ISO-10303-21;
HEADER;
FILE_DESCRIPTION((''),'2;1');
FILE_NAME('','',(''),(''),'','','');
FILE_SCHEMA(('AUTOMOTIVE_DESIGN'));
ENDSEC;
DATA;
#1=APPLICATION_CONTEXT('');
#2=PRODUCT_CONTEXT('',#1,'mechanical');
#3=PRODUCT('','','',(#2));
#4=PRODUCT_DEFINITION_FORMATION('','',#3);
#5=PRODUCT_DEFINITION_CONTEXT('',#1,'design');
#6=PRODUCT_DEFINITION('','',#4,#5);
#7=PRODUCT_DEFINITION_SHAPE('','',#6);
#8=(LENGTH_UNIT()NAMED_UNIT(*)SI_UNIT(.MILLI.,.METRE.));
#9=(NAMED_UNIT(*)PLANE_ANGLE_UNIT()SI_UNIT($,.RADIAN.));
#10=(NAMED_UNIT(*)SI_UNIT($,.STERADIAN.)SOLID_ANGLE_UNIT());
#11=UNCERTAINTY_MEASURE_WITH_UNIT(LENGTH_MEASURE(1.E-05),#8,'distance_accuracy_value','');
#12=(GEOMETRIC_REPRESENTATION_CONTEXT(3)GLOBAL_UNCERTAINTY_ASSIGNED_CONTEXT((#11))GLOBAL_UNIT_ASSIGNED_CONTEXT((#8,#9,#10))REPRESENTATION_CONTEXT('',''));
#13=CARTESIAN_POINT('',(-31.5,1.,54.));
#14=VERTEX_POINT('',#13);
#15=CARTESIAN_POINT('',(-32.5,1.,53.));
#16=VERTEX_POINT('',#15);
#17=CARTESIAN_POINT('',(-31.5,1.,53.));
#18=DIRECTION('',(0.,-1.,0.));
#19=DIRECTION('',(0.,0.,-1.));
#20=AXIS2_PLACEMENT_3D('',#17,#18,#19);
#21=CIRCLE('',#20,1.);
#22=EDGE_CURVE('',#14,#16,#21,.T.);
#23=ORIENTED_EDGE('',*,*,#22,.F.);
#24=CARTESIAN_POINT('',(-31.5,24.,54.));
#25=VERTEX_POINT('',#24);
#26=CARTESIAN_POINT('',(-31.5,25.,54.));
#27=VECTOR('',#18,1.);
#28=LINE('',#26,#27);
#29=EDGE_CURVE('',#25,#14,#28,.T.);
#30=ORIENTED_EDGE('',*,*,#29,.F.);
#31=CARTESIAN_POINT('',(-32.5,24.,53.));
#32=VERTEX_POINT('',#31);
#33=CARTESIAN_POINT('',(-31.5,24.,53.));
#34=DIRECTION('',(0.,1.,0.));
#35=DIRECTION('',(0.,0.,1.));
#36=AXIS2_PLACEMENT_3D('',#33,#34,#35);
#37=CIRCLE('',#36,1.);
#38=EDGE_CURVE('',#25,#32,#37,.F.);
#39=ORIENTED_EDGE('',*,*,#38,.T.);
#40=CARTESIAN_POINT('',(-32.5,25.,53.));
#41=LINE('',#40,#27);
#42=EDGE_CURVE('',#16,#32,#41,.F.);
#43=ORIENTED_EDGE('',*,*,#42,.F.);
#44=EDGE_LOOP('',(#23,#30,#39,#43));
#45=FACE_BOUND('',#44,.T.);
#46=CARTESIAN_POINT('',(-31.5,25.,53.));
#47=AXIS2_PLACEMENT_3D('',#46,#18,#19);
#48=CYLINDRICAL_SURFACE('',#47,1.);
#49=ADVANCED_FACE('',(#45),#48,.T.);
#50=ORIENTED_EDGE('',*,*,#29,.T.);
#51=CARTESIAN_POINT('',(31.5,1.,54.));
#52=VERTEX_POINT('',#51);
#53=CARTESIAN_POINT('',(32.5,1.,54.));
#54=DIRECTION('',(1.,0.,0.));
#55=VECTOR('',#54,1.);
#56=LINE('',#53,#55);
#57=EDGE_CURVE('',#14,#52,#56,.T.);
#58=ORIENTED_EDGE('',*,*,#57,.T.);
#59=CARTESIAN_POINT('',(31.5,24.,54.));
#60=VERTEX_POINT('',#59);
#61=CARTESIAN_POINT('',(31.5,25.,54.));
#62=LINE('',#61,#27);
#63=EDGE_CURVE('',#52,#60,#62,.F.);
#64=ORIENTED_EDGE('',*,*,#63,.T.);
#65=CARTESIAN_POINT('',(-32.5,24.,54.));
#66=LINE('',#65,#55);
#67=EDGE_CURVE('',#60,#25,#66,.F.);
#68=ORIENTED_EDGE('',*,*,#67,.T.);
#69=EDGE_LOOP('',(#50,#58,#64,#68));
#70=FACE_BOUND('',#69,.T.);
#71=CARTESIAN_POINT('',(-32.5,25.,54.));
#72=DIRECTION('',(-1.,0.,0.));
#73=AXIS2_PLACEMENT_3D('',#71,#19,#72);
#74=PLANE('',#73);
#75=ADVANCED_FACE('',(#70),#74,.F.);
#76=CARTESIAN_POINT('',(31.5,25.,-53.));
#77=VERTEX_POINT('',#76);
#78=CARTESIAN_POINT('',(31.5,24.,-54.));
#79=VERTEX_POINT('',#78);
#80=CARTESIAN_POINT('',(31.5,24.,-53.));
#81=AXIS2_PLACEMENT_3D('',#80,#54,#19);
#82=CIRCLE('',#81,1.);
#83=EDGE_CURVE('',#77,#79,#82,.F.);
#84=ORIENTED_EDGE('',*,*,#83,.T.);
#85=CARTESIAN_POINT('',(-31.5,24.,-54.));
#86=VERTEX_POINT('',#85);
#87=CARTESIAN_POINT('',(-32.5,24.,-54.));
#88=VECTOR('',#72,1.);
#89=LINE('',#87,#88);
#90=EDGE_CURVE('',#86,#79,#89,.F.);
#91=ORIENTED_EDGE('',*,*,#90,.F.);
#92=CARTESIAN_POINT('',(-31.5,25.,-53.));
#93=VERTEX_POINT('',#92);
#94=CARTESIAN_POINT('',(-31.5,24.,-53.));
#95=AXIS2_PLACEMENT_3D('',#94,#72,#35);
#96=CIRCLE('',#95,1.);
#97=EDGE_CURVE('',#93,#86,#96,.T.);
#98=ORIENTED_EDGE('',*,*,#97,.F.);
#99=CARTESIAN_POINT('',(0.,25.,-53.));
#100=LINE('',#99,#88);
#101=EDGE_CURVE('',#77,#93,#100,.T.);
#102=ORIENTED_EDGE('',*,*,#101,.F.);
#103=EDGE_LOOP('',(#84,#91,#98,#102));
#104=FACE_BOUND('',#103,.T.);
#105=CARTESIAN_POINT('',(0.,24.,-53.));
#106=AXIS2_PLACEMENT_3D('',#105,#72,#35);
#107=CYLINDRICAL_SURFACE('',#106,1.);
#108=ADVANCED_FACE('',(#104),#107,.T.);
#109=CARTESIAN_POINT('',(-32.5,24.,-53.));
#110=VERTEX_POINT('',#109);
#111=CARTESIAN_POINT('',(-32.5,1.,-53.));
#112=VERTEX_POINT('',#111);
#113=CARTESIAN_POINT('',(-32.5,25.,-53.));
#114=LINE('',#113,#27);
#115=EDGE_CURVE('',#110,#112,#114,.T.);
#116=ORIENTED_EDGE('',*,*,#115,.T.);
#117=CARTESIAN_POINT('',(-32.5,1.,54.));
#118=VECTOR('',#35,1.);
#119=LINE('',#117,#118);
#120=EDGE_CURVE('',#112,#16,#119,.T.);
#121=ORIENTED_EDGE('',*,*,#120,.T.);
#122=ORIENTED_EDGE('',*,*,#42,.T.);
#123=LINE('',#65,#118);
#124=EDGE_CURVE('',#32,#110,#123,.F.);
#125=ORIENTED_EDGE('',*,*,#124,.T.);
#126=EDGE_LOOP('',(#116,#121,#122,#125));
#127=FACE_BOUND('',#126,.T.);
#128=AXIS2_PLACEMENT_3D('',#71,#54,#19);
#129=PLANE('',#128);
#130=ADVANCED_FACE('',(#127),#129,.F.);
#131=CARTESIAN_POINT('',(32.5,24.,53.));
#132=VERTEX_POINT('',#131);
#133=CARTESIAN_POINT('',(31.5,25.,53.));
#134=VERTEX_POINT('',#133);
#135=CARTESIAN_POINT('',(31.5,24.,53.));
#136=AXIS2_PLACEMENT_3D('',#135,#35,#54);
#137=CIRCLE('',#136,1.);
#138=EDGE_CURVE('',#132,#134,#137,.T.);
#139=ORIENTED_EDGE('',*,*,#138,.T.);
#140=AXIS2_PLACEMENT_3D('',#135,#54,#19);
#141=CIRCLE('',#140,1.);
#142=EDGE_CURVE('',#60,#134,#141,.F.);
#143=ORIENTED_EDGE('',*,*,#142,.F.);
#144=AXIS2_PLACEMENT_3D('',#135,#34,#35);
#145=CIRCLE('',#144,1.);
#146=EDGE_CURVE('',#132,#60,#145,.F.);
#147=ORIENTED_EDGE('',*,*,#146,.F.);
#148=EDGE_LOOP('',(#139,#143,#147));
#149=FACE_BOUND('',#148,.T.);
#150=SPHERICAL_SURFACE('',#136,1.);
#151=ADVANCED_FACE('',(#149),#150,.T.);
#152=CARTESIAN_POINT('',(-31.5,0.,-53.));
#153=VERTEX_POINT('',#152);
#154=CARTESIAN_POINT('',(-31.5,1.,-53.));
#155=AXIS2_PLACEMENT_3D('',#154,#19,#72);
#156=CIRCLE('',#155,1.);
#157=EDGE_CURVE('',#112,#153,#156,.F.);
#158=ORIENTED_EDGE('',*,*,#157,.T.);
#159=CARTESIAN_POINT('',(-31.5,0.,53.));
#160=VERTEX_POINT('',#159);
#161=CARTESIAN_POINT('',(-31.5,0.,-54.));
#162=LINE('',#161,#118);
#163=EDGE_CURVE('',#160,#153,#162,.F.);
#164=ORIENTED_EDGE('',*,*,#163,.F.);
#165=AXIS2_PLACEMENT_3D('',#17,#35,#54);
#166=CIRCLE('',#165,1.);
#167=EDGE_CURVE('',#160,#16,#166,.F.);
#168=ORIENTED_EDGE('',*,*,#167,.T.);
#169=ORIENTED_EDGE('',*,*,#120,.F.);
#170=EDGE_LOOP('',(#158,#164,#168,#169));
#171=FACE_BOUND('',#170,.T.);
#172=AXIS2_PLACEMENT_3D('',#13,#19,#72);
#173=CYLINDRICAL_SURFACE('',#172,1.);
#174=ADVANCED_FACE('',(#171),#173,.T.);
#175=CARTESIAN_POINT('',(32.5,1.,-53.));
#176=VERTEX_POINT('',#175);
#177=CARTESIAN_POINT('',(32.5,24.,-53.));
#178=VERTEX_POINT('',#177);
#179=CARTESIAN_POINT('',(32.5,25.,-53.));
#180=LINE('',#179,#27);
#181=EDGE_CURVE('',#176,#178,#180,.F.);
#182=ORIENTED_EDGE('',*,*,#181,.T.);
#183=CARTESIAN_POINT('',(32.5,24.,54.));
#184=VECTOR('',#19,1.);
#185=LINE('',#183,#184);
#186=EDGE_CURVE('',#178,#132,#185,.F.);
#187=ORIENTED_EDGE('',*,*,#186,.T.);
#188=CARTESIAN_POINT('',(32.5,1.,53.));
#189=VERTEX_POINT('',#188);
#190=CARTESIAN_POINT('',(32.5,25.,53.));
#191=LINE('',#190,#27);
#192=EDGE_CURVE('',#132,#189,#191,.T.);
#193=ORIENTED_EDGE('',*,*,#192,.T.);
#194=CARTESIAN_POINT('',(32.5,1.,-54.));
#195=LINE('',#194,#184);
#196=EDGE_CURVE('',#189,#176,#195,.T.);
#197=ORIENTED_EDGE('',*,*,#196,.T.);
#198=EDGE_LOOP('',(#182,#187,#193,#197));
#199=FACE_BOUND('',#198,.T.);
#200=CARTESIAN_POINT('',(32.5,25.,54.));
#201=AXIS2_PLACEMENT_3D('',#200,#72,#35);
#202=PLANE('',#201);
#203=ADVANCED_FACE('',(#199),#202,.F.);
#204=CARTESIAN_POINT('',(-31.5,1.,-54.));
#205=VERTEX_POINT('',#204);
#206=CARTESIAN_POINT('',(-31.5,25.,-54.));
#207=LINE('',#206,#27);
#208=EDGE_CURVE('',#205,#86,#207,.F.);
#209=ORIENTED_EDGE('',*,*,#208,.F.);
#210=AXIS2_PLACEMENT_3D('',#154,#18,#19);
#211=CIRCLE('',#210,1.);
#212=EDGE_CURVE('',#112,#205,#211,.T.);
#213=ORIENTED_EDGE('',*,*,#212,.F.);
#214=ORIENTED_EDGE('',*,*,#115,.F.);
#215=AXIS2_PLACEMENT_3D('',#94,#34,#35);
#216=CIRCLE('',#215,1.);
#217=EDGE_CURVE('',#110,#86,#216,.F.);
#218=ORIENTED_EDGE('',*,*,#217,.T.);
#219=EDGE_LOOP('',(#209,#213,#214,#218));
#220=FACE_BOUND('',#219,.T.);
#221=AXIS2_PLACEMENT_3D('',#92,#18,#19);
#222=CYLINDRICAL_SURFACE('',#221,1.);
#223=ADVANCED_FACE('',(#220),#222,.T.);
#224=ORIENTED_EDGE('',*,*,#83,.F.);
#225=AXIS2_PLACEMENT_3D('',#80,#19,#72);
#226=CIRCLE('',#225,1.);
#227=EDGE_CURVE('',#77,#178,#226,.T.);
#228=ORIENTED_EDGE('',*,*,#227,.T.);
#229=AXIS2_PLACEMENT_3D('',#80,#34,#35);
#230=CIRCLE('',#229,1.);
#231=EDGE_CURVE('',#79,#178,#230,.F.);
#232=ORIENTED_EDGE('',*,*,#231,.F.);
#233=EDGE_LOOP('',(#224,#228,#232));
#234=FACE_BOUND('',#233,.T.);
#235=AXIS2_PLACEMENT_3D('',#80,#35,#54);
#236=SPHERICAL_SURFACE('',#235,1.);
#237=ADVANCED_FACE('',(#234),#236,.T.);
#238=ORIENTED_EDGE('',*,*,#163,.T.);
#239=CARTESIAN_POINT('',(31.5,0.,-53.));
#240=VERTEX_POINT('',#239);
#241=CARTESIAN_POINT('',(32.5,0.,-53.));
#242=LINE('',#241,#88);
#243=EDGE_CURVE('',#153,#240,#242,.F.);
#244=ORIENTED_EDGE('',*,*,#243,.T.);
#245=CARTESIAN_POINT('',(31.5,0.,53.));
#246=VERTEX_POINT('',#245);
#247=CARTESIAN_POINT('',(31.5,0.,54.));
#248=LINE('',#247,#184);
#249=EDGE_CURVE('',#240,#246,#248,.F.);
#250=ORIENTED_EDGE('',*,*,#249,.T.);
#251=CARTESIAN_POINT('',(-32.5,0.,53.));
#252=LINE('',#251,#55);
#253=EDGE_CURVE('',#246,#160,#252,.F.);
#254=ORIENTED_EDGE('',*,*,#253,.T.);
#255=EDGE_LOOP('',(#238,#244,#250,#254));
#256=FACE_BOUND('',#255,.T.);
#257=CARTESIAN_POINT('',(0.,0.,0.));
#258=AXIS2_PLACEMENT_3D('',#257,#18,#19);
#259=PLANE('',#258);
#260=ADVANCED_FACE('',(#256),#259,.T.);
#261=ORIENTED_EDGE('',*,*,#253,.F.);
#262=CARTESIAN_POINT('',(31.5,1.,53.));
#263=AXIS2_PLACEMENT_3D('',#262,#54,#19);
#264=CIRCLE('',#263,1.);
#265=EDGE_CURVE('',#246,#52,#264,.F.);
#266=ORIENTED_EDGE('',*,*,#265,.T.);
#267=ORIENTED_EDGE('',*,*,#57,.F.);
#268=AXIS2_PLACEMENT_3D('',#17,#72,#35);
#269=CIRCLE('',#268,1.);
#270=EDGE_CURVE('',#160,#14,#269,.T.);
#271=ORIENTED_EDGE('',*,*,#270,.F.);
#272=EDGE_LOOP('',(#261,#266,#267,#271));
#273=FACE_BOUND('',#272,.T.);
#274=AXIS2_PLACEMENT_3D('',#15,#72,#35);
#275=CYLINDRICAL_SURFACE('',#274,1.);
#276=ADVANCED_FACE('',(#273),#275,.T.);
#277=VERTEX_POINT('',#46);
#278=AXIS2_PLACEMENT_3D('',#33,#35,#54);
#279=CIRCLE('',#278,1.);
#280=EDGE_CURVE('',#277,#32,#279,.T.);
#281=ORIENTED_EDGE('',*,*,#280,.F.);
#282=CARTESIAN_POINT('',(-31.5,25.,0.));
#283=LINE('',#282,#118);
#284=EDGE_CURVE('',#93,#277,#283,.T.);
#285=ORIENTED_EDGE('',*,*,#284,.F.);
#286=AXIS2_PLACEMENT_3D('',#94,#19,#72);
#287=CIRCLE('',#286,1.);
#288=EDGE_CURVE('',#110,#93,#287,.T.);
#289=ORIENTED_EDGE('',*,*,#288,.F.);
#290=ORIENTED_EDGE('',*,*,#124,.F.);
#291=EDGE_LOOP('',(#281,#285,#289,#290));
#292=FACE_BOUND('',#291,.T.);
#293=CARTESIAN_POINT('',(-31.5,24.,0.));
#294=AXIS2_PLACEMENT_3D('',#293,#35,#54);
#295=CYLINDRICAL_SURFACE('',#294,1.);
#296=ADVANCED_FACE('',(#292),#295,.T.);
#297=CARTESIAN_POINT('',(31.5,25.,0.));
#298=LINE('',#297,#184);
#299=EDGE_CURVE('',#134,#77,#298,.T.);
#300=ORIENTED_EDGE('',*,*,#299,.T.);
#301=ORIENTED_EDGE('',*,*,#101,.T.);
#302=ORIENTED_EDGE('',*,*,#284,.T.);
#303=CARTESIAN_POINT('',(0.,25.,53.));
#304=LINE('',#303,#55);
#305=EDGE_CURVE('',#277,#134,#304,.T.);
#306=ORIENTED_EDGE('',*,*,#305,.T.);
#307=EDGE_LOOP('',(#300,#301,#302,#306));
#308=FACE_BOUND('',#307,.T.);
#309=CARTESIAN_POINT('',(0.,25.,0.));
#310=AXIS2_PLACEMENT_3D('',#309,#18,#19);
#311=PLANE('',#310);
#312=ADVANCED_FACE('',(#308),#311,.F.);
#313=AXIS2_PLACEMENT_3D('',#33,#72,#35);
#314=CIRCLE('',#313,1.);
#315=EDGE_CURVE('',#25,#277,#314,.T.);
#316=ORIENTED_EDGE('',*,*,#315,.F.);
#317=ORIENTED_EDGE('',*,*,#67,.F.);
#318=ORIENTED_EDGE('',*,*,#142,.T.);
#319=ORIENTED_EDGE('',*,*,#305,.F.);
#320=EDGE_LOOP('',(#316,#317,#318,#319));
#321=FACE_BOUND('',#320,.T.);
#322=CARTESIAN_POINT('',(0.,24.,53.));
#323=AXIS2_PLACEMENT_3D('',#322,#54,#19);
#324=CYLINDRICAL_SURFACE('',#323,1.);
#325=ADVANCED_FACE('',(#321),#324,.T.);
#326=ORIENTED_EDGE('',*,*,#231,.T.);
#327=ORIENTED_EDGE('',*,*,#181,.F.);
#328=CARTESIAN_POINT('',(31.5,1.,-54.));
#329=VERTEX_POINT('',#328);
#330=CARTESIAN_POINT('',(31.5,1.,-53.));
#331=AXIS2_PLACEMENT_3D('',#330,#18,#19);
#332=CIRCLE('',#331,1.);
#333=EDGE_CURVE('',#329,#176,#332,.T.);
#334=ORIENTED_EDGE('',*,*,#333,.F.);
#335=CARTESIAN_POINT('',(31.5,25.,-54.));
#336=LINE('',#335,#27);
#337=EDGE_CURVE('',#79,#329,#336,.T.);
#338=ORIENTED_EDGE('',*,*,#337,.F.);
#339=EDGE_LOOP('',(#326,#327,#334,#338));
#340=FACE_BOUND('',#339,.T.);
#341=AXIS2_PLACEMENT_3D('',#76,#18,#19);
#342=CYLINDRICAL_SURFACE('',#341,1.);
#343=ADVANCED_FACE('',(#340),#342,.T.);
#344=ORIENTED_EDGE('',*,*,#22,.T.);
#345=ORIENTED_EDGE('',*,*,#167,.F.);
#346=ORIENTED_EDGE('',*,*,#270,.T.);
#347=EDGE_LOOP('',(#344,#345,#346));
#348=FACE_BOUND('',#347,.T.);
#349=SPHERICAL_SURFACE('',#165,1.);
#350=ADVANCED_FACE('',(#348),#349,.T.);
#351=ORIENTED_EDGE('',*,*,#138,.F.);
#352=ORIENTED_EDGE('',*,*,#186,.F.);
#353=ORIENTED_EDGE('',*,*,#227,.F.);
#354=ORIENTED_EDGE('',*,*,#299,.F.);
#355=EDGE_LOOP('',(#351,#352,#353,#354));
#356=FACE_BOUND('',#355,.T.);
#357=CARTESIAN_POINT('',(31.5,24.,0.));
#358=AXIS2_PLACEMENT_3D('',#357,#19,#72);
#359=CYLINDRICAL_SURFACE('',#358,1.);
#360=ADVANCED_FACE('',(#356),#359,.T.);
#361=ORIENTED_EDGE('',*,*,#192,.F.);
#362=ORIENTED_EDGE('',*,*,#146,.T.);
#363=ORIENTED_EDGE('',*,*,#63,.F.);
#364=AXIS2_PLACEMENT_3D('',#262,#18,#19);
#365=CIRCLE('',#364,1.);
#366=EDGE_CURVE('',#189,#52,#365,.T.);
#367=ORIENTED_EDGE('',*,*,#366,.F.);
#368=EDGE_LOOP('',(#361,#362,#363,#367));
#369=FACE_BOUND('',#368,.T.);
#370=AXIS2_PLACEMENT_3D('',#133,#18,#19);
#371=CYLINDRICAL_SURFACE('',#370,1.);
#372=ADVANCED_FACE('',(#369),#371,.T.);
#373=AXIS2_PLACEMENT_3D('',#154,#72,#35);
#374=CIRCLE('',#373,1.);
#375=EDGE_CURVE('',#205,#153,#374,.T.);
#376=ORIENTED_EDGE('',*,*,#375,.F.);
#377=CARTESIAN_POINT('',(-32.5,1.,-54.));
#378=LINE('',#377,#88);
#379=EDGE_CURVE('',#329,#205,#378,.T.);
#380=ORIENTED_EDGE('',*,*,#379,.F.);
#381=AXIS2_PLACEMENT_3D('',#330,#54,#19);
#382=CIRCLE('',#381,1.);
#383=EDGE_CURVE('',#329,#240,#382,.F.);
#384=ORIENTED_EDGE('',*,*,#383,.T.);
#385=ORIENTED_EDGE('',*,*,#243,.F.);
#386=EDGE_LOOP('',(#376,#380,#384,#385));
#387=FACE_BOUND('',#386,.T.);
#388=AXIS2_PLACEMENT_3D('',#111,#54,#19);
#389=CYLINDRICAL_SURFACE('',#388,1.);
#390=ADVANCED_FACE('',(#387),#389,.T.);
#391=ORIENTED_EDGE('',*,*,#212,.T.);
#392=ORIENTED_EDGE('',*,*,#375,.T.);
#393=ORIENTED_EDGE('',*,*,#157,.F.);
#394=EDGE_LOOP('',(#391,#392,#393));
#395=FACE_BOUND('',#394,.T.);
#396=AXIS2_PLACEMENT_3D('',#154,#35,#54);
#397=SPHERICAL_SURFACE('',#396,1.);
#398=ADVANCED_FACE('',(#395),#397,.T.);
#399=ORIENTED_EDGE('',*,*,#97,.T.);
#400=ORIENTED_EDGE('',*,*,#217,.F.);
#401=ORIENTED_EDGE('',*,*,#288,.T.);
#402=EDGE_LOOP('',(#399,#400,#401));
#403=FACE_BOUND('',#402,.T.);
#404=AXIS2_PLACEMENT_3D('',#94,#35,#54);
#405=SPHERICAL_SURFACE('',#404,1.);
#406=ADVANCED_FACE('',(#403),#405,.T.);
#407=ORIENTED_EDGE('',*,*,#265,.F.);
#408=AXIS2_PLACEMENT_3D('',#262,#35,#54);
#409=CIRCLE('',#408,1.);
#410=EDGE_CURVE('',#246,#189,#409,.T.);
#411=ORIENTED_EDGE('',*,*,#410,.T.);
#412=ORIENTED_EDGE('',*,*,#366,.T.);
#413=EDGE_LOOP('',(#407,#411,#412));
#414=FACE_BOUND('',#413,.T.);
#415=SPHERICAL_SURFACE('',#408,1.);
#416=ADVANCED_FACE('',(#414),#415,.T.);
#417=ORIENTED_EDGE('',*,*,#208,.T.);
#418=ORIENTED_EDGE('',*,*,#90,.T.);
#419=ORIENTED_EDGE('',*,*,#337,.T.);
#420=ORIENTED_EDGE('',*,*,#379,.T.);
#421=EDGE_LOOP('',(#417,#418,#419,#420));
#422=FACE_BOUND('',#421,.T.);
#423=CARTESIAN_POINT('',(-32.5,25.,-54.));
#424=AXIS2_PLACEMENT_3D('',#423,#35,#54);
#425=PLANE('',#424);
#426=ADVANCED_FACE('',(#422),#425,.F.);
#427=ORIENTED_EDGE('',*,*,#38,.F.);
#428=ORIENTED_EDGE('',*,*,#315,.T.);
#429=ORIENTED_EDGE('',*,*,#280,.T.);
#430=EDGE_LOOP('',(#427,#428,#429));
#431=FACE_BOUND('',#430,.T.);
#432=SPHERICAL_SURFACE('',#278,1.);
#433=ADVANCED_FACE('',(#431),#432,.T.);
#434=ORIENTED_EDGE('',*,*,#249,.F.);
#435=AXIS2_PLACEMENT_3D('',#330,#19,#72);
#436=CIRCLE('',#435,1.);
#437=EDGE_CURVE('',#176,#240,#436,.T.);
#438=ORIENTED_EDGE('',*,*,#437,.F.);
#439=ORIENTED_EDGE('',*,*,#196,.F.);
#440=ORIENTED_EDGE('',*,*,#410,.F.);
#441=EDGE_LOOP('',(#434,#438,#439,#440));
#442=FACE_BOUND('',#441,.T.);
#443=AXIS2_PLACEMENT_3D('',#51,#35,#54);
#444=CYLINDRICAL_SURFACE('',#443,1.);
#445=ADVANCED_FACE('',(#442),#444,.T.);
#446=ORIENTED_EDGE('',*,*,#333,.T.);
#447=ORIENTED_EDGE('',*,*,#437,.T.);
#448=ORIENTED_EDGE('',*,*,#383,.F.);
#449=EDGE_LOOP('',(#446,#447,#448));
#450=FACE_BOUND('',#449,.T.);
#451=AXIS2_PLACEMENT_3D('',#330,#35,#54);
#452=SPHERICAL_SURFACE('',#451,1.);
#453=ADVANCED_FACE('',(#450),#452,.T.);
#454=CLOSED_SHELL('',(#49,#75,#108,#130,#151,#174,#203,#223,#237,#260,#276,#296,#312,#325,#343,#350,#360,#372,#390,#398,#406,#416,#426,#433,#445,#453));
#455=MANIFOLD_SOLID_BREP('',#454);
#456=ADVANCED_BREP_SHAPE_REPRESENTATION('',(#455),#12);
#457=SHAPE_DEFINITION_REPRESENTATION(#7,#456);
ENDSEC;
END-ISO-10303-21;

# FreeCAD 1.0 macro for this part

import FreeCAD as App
import Part
import Sketcher

V = App.Vector
Q = App.Units.Quantity


def add_polygon(sketch, points):
    """Adds a closed chain of lines whose ends are joined by coincident constraints."""
    first, n = sketch.GeometryCount, len(points)
    for a, b in zip(points, points[1:] + points[:1]):
        sketch.addGeometry(Part.LineSegment(App.Vector(*a, 0), App.Vector(*b, 0)), False)
    for i in range(n):
        sketch.addConstraint(Sketcher.Constraint("Coincident", first + i, 2, first + (i + 1) % n, 1))

doc = App.newDocument("Part")
body = doc.addObject("PartDesign::Body", "Body")

# Sketch on XZ plane
sketch1 = body.newObject("Sketcher::SketchObject", "Sketch")
sketch1.AttachmentSupport = (doc.getObject("XZ_Plane"), [""])
sketch1.MapMode = "FlatFace"
add_polygon(sketch1, [(-32.5, -54), (-32.5, 54), (32.5, 54), (32.5, -54)])  # lines 0-3
sketch1.addConstraint([
    Sketcher.Constraint("Vertical", 0),
    Sketcher.Constraint("Horizontal", 1),
    Sketcher.Constraint("Vertical", 2),
    Sketcher.Constraint("Horizontal", 3),
    Sketcher.Constraint("Symmetric", 0, 2, 2, 2, -1, 1),
    Sketcher.Constraint("DistanceX", 1, 1, 1, 2, Q("65 mm")),
    Sketcher.Constraint("DistanceY", 0, 1, 0, 2, Q("108 mm")),
])
pad1 = body.newObject("PartDesign::Pad", "Pad")
pad1.Profile = sketch1
pad1.Length = 25
pad1.Reversed = True
doc.recompute()

fillet = body.newObject("PartDesign::Fillet", "Fillet")
fillet.Base = (pad1, ["Edge1"])
fillet.UseAllEdges = True
fillet.Radius = 1

doc.recompute()
